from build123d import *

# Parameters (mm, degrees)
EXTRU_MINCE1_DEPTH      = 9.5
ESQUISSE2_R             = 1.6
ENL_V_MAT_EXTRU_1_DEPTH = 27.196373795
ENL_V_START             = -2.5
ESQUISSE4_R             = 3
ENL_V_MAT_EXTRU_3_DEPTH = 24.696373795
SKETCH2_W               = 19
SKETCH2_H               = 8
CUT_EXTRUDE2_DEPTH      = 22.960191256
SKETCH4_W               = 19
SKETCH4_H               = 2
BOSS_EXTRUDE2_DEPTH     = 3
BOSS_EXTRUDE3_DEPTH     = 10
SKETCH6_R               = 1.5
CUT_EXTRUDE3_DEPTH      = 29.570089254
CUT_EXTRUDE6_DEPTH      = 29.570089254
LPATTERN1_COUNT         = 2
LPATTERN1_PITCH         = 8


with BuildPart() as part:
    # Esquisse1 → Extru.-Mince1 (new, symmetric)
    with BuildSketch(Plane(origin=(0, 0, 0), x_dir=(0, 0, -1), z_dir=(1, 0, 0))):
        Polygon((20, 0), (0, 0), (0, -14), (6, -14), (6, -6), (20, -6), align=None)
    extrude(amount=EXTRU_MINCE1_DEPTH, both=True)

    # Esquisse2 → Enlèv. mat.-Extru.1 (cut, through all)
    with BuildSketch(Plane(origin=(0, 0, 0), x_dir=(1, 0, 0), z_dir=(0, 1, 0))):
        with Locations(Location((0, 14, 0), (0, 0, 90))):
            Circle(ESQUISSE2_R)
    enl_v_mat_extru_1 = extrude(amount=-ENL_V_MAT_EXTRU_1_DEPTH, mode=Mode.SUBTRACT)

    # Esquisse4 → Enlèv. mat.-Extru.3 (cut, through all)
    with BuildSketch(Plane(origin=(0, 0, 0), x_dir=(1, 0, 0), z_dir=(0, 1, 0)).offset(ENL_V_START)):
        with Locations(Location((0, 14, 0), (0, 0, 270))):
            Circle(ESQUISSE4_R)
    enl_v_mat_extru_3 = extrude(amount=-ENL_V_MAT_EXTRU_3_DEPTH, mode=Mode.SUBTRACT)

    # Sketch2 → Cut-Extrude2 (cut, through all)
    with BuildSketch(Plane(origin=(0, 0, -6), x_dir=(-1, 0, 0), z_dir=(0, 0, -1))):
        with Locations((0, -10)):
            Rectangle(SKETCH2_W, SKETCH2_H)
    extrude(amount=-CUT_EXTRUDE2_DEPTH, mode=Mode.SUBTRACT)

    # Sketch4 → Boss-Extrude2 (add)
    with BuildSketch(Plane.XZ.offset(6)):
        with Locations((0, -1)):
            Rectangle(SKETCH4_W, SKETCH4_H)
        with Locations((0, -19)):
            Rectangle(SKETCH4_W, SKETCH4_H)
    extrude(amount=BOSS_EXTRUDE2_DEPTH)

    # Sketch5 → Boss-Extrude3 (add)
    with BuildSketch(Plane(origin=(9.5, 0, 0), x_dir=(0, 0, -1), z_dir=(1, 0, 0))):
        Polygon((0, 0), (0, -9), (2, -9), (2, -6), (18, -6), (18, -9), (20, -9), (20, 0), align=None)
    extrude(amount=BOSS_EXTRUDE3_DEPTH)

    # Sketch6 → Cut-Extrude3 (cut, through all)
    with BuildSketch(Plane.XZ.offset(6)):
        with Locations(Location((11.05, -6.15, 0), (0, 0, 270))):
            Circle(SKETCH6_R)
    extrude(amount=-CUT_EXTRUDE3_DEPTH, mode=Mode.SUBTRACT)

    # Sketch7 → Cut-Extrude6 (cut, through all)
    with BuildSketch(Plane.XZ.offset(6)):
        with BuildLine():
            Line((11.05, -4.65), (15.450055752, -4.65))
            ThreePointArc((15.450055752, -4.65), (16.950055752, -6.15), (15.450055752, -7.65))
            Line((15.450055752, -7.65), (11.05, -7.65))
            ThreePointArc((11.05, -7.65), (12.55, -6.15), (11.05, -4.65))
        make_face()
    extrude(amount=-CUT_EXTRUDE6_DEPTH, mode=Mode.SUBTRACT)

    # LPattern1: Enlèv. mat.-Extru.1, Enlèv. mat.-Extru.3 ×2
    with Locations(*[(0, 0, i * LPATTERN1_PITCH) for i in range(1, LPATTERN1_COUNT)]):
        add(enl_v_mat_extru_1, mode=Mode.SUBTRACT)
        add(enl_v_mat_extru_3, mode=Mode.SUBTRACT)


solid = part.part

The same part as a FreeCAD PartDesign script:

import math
import FreeCAD as App
import Part
import Sketcher

V = App.Vector


def add_polygon(sketch, points):
    """Adds a closed chain of lines whose ends are joined by coincident constraints."""
    first, n = sketch.GeometryCount, len(points)
    for a, b in zip(points, points[1:] + points[:1]):
        sketch.addGeometry(Part.LineSegment(App.Vector(*a, 0), App.Vector(*b, 0)), False)
    for i in range(n):
        sketch.addConstraint(Sketcher.Constraint("Coincident", first + i, 2, first + (i + 1) % n, 1))

doc = App.newDocument("Part")
body = doc.addObject("PartDesign::Body", "Body")

# Sketch on YZ plane
sketch1 = body.newObject("Sketcher::SketchObject", "Sketch")
sketch1.AttachmentSupport = (doc.getObject("YZ_Plane"), [""])
sketch1.MapMode = "FlatFace"
add_polygon(sketch1, [(0, -20), (0, 0), (-14, 0), (-14, -6), (-6, -6), (-6, -20)])  # lines 0-5
sketch1.addConstraint(Sketcher.Constraint("Vertical", 0))
sketch1.addConstraint(Sketcher.Constraint("Horizontal", 1))
sketch1.addConstraint(Sketcher.Constraint("Vertical", 2))
sketch1.addConstraint(Sketcher.Constraint("Horizontal", 3))
sketch1.addConstraint(Sketcher.Constraint("Vertical", 4))
sketch1.addConstraint(Sketcher.Constraint("Horizontal", 5))
sketch1.addConstraint(Sketcher.Constraint("Coincident", 0, 2, -1, 1))
sketch1.addConstraint(Sketcher.Constraint("Equal", 5, 2))
sketch1.addConstraint(Sketcher.Constraint("Equal", 1, 4))
sketch1.addConstraint(Sketcher.Constraint("DistanceX", 1, 2, 1, 1, 14.0))
sketch1.addConstraint(Sketcher.Constraint("DistanceX", 3, 1, 3, 2, 8.0))
pad1 = body.newObject("PartDesign::Pad", "Pad")
pad1.Profile = sketch1
pad1.Length = 19
pad1.Midplane = True

# Sketch on XZ plane
sketch2 = body.newObject("Sketcher::SketchObject", "Sketch001")
sketch2.AttachmentSupport = (doc.getObject("XZ_Plane"), [""])
sketch2.MapMode = "FlatFace"
sketch2.addGeometry(Part.Circle(V(0, -14, 0), V(0, 0, 1), 1.6), False)
sketch2.addConstraint(Sketcher.Constraint("PointOnObject", 0, 3, -2))
sketch2.addConstraint(Sketcher.Constraint("Diameter", 0, 3.2))
sketch2.addConstraint(Sketcher.Constraint("DistanceY", 0, 3, -1, 1, 14.0))
pocket1 = body.newObject("PartDesign::Pocket", "Pocket")
pocket1.Profile = sketch2
pocket1.Type = "ThroughAll"
pocket1.Reversed = True

# Sketch on XZ plane
sketch3 = body.newObject("Sketcher::SketchObject", "Sketch002")
sketch3.AttachmentSupport = (doc.getObject("XZ_Plane"), [""])
sketch3.MapMode = "FlatFace"
sketch3.AttachmentOffset = App.Placement(V(0, 0, 2.5), App.Rotation())
sketch3.addGeometry(Part.Circle(V(0, -14, 0), V(0, 0, 1), 3), False)
sketch3.addConstraint(Sketcher.Constraint("PointOnObject", 0, 3, -2))
sketch3.addConstraint(Sketcher.Constraint("Diameter", 0, 6.0))
sketch3.addConstraint(Sketcher.Constraint("DistanceY", 0, 3, -1, 1, 14.0))
pocket2 = body.newObject("PartDesign::Pocket", "Pocket001")
pocket2.Profile = sketch3
pocket2.Type = "ThroughAll"
pocket2.Reversed = True

# Sketch on XY plane
sketch4 = body.newObject("Sketcher::SketchObject", "Sketch003")
sketch4.AttachmentSupport = (doc.getObject("XY_Plane"), [""])
sketch4.MapMode = "FlatFace"
sketch4.AttachmentOffset = App.Placement(V(0, 0, -6), App.Rotation())
add_polygon(sketch4, [(10, -6), (10, -14), (-10, -14), (-10, -6)])  # lines 0-3
sketch4.addConstraint(Sketcher.Constraint("Vertical", 0))
sketch4.addConstraint(Sketcher.Constraint("Horizontal", 1))
sketch4.addConstraint(Sketcher.Constraint("Vertical", 2))
sketch4.addConstraint(Sketcher.Constraint("Horizontal", 3))
sketch4.addConstraint(Sketcher.Constraint("DistanceX", 1, 2, 1, 1, 19.0))
sketch4.addConstraint(Sketcher.Constraint("DistanceY", 0, 2, 0, 1, 8.0))
sketch4.addConstraint(Sketcher.Constraint("DistanceY", 0, 2, -1, 1, 14.0))
sketch4.addConstraint(Sketcher.Constraint("DistanceX", -1, 1, 0, 2, 9.5))
pocket3 = body.newObject("PartDesign::Pocket", "Pocket002")
pocket3.Profile = sketch4
pocket3.Type = "ThroughAll"
pocket3.Reversed = True

# Sketch on XZ plane
sketch5 = body.newObject("Sketcher::SketchObject", "Sketch004")
sketch5.AttachmentSupport = (doc.getObject("XZ_Plane"), [""])
sketch5.MapMode = "FlatFace"
sketch5.AttachmentOffset = App.Placement(V(0, 0, 6), App.Rotation())
add_polygon(sketch5, [(-9.5, 0), (-9.5, -2), (9.5, -2), (9.5, 0)])  # lines 0-3
add_polygon(sketch5, [(-9.5, -18), (-9.5, -20), (9.5, -20), (9.5, -18)])  # lines 4-7
sketch5.addConstraint(Sketcher.Constraint("Vertical", 0))
sketch5.addConstraint(Sketcher.Constraint("Horizontal", 1))
sketch5.addConstraint(Sketcher.Constraint("Vertical", 2))
sketch5.addConstraint(Sketcher.Constraint("Horizontal", 3))
sketch5.addConstraint(Sketcher.Constraint("Vertical", 4))
sketch5.addConstraint(Sketcher.Constraint("Horizontal", 5))
sketch5.addConstraint(Sketcher.Constraint("Vertical", 6))
sketch5.addConstraint(Sketcher.Constraint("Horizontal", 7))
sketch5.addConstraint(Sketcher.Constraint("Symmetric", 2, 2, 3, 2, -1, 1))
sketch5.addConstraint(Sketcher.Constraint("Vertical", 3, 2, 4, 2))
sketch5.addConstraint(Sketcher.Constraint("Vertical", 2, 2, 5, 2))
sketch5.addConstraint(Sketcher.Constraint("Equal", 2, 4))
sketch5.addConstraint(Sketcher.Constraint("DistanceX", 1, 1, 1, 2, 19.0))
sketch5.addConstraint(Sketcher.Constraint("DistanceY", 0, 2, 0, 1, 2.0))
sketch5.addConstraint(Sketcher.Constraint("DistanceY", 4, 2, -1, 1, 20.0))
pad2 = body.newObject("PartDesign::Pad", "Pad001")
pad2.Profile = sketch5
pad2.Length = 3

# Sketch on YZ plane
sketch6 = body.newObject("Sketcher::SketchObject", "Sketch005")
sketch6.AttachmentSupport = (doc.getObject("YZ_Plane"), [""])
sketch6.MapMode = "FlatFace"
sketch6.AttachmentOffset = App.Placement(V(0, 0, 9.5), App.Rotation())
add_polygon(sketch6, [(0, 0), (-9, 0), (-9, -2), (-6, -2), (-6, -18), (-9, -18), (-9, -20), (0, -20)])  # lines 0-7
sketch6.addConstraint(Sketcher.Constraint("Horizontal", 0))
sketch6.addConstraint(Sketcher.Constraint("Vertical", 1))
sketch6.addConstraint(Sketcher.Constraint("Horizontal", 2))
sketch6.addConstraint(Sketcher.Constraint("Vertical", 3))
sketch6.addConstraint(Sketcher.Constraint("Horizontal", 4))
sketch6.addConstraint(Sketcher.Constraint("Vertical", 5))
sketch6.addConstraint(Sketcher.Constraint("Horizontal", 6))
sketch6.addConstraint(Sketcher.Constraint("Vertical", 7))
sketch6.addConstraint(Sketcher.Constraint("Coincident", 7, 2, -1, 1))
sketch6.addConstraint(Sketcher.Constraint("Vertical", 1, 2, 4, 2))
sketch6.addConstraint(Sketcher.Constraint("Equal", 1, 5))
sketch6.addConstraint(Sketcher.Constraint("DistanceX", 0, 2, 0, 1, 9.0))
sketch6.addConstraint(Sketcher.Constraint("DistanceX", 2, 1, 2, 2, 3.0))
sketch6.addConstraint(Sketcher.Constraint("DistanceY", 1, 2, 1, 1, 2.0))
sketch6.addConstraint(Sketcher.Constraint("DistanceY", 3, 2, 3, 1, 16.0))
pad3 = body.newObject("PartDesign::Pad", "Pad002")
pad3.Profile = sketch6
pad3.Length = 10

# Sketch on XZ plane
sketch7 = body.newObject("Sketcher::SketchObject", "Sketch006")
sketch7.AttachmentSupport = (doc.getObject("XZ_Plane"), [""])
sketch7.MapMode = "FlatFace"
sketch7.AttachmentOffset = App.Placement(V(0, 0, 6), App.Rotation())
sketch7.addGeometry(Part.Circle(V(11.1, -6.2, 0), V(0, 0, 1), 1.5), False)
sketch7.addConstraint(Sketcher.Constraint("Diameter", 0, 3.0))
sketch7.addConstraint(Sketcher.Constraint("DistanceX", -1, 1, 0, 3, 11.05))
sketch7.addConstraint(Sketcher.Constraint("DistanceY", 0, 3, -1, 1, 6.15))
pocket4 = body.newObject("PartDesign::Pocket", "Pocket003")
pocket4.Profile = sketch7
pocket4.Type = "ThroughAll"

# Sketch on XZ plane
sketch8 = body.newObject("Sketcher::SketchObject", "Sketch007")
sketch8.AttachmentSupport = (doc.getObject("XZ_Plane"), [""])
sketch8.MapMode = "FlatFace"
sketch8.AttachmentOffset = App.Placement(V(0, 0, 6), App.Rotation())
sketch8.addGeometry(Part.LineSegment(V(15.5, -4.7, 0), V(11.1, -4.7, 0)), False)
sketch8.addGeometry(Part.ArcOfCircle(Part.Circle(V(11.1, -6.2, 0), V(0, 0, 1), 1.5), math.radians(-90), math.radians(90)), False)
sketch8.addGeometry(Part.LineSegment(V(11.1, -7.7, 0), V(15.5, -7.7, 0)), False)
sketch8.addGeometry(Part.ArcOfCircle(Part.Circle(V(15.5, -6.2, 0), V(0, 0, 1), 1.5), math.radians(-90), math.radians(90)), False)
sketch8.addConstraint(Sketcher.Constraint("Tangent", 0, 2, 1, 2))
sketch8.addConstraint(Sketcher.Constraint("Tangent", 1, 1, 2, 1))
sketch8.addConstraint(Sketcher.Constraint("Tangent", 2, 2, 3, 1))
sketch8.addConstraint(Sketcher.Constraint("Tangent", 3, 2, 0, 1))
sketch8.addConstraint(Sketcher.Constraint("Horizontal", 0))
sketch8.addConstraint(Sketcher.Constraint("Horizontal", 2))
sketch8.addConstraint(Sketcher.Constraint("Radius", 1, 1.5))
sketch8.addConstraint(Sketcher.Constraint("DistanceX", -1, 1, 1, 3, 11.05))
sketch8.addConstraint(Sketcher.Constraint("DistanceY", 1, 3, -1, 1, 6.15))
sketch8.addConstraint(Sketcher.Constraint("DistanceX", 0, 2, 0, 1, 4.400056))
pocket5 = body.newObject("PartDesign::Pocket", "Pocket004")
pocket5.Profile = sketch8
pocket5.Type = "ThroughAll"
doc.recompute()

linearpattern = body.newObject("PartDesign::LinearPattern", "LinearPattern")
linearpattern.Originals = [pocket1, pocket2]
linearpattern.Direction = (doc.getObject("Z_Axis"), [""])
linearpattern.Mode = "offset"
linearpattern.Offset = 8
linearpattern.Occurrences = 2
body.Tip = linearpattern

doc.recompute()
